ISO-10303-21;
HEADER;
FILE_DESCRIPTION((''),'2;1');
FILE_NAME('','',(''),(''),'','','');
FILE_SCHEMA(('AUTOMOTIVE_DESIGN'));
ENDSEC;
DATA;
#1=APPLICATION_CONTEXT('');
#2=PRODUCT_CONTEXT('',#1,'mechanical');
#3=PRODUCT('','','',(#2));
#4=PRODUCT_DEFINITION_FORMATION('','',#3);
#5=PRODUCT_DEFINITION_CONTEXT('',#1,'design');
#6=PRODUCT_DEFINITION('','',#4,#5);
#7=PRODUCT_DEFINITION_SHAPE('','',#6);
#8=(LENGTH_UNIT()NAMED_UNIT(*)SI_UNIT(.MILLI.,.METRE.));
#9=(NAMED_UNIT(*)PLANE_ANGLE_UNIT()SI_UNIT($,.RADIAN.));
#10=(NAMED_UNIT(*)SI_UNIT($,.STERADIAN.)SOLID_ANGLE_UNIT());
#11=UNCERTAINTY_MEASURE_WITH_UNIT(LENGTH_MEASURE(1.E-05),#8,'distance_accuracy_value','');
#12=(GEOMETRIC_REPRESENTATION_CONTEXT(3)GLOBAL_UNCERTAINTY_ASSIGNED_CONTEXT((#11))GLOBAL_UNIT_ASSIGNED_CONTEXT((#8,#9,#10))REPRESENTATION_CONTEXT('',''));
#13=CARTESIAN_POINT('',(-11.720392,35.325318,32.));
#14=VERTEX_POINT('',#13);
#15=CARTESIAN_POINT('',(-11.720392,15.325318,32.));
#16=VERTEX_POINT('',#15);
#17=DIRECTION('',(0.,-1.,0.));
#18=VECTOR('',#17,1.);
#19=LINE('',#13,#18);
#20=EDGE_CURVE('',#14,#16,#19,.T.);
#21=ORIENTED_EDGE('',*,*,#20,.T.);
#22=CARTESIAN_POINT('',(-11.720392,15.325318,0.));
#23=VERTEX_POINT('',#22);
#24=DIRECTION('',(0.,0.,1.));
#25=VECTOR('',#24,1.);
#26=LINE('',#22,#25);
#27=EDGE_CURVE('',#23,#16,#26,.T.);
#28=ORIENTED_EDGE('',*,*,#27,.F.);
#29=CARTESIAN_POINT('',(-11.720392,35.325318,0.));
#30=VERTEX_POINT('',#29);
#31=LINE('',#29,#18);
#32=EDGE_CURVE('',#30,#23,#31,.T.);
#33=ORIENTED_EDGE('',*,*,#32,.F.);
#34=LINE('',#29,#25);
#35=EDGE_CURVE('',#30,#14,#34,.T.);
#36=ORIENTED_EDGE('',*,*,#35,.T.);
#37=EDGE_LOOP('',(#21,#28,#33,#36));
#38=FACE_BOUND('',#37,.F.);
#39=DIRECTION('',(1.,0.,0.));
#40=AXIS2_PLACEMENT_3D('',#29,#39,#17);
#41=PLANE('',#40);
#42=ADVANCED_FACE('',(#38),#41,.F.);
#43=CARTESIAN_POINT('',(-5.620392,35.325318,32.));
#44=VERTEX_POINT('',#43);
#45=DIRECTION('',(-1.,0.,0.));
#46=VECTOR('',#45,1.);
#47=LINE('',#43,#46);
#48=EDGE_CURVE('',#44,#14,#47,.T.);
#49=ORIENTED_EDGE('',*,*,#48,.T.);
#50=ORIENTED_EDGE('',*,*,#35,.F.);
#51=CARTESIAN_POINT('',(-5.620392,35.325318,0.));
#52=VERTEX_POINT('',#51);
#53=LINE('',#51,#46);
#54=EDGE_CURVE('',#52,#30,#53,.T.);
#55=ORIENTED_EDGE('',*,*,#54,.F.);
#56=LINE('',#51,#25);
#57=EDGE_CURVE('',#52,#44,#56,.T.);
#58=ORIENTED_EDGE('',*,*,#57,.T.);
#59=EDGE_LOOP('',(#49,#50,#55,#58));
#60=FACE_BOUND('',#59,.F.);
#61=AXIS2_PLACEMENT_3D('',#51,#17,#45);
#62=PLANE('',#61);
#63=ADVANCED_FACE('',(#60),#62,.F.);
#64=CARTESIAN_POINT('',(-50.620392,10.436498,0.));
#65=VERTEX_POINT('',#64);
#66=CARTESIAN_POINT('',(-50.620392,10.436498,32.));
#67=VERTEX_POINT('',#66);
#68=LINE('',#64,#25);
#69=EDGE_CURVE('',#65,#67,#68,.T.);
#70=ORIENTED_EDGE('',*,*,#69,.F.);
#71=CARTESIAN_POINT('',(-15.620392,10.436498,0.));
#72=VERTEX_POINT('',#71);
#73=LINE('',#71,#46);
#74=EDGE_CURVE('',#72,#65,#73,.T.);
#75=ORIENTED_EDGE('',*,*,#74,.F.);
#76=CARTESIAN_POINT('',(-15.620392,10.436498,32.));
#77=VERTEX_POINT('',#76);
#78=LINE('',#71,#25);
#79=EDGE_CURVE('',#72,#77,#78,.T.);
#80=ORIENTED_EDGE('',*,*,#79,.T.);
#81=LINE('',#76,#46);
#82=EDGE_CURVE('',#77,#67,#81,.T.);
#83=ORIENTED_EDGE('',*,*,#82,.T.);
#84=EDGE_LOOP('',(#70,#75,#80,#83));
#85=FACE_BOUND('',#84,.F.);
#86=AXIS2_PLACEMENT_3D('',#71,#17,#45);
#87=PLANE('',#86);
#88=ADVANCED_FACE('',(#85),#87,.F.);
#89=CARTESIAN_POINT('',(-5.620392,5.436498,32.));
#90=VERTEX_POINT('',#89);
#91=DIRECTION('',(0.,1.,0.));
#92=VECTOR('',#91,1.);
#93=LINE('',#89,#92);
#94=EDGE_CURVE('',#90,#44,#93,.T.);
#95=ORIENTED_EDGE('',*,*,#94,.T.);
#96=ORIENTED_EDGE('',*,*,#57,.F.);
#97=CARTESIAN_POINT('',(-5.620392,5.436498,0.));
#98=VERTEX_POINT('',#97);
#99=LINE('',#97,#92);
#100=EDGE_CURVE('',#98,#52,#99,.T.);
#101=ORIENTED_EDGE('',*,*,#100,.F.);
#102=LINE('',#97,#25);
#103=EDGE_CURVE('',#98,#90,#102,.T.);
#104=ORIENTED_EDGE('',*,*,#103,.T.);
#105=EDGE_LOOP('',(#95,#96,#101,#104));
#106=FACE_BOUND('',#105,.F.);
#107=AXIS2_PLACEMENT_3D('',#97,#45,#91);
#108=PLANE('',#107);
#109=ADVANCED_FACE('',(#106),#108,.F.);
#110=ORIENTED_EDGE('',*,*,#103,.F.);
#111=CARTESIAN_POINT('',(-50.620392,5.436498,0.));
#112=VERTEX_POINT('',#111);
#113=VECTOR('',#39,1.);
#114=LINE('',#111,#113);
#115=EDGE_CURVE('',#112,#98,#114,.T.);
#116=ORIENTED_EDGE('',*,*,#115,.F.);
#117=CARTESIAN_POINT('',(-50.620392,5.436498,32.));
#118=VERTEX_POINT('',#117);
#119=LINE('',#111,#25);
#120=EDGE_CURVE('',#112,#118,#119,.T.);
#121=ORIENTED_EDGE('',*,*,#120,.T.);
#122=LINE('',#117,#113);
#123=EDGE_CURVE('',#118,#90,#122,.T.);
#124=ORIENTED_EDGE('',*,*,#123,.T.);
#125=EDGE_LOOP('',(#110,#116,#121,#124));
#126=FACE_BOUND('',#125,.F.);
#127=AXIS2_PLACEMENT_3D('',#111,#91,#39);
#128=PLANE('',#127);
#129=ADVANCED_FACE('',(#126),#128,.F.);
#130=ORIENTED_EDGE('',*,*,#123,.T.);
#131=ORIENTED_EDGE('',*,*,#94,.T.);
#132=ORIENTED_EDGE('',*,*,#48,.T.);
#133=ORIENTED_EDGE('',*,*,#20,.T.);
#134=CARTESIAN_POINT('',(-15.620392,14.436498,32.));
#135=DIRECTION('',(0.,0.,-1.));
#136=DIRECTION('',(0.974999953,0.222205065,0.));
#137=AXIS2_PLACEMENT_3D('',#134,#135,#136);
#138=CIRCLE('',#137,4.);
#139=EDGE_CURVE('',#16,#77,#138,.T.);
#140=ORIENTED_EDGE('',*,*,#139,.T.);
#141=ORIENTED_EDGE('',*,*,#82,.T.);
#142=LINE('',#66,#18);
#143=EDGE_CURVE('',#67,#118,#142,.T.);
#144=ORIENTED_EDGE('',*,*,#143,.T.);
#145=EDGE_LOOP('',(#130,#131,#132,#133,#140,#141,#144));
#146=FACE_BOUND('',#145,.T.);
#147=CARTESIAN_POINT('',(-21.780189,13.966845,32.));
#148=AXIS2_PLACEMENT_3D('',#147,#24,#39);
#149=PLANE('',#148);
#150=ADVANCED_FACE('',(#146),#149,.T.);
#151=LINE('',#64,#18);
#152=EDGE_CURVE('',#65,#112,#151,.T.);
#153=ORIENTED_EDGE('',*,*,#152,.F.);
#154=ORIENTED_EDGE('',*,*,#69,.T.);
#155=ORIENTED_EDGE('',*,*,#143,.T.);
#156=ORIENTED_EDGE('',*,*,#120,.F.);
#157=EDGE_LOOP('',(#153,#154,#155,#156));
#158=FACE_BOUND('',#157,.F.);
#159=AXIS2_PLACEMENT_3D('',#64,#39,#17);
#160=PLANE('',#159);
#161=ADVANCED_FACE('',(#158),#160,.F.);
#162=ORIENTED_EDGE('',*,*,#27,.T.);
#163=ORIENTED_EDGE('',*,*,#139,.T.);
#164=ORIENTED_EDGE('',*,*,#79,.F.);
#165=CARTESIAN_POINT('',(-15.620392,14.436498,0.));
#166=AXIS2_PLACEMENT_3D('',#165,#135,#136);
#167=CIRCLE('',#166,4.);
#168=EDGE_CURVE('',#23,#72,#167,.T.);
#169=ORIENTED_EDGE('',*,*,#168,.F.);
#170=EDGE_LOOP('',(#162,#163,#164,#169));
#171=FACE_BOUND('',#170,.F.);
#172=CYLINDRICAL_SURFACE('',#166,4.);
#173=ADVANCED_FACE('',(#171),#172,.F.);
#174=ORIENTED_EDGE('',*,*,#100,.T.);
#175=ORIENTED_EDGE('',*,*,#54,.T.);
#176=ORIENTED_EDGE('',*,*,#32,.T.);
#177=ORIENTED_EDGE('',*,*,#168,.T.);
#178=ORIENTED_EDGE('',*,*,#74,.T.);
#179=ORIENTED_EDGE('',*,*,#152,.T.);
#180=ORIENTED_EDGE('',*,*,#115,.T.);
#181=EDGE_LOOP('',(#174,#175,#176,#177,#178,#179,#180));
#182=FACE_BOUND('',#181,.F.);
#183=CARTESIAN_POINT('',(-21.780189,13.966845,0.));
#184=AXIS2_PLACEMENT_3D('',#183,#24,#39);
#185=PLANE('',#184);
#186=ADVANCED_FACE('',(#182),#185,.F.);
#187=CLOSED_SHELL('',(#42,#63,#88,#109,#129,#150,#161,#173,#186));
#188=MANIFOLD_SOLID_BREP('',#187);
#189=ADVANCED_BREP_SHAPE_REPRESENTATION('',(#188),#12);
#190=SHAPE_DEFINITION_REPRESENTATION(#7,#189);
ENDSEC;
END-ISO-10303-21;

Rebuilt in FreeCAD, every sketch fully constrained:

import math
import FreeCAD as App
import Part
import Sketcher

V = App.Vector
Q = App.Units.Quantity

doc = App.newDocument("Part")
params = doc.addObject("Spreadsheet::Sheet", "Params")
for row, (alias, value) in enumerate([
    ("sketch1_radius", "4 mm"),
    ("sketch1_width", "45 mm"),
    ("sketch1_width2", "35 mm"),
    ("sketch1_height", "5 mm"),
    ("sketch1_height2", "20 mm"),
    ("pad1_length", "32 mm"),
], start=1):
    params.set(f"A{row}", alias)
    params.set(f"B{row}", "=" + value)
    params.setAlias(f"B{row}", alias)

body = doc.addObject("PartDesign::Body", "Body")

# Sketch on XY plane
sketch1 = doc.addObject("Sketcher::SketchObject", "Sketch")
body.addObject(sketch1)
sketch1.AttachmentSupport = (doc.XY_Plane, [""])
sketch1.MapMode = "FlatFace"
sketch1.addGeometry(Part.LineSegment(V(-50.6, 10.4, 0), V(-50.6, 5.4, 0)), False)
sketch1.addGeometry(Part.LineSegment(V(-50.6, 5.4, 0), V(-5.6, 5.4, 0)), False)
sketch1.addGeometry(Part.LineSegment(V(-5.6, 5.4, 0), V(-5.6, 35.3, 0)), False)
sketch1.addGeometry(Part.LineSegment(V(-5.6, 35.3, 0), V(-11.7, 35.3, 0)), False)
sketch1.addGeometry(Part.LineSegment(V(-11.7, 35.3, 0), V(-11.7, 15.3, 0)), False)
sketch1.addGeometry(Part.ArcOfCircle(Part.Circle(V(-15.6, 14.4, 0), V(0, 0, 1), 4), math.radians(-90), math.radians(13)), False)
sketch1.addGeometry(Part.LineSegment(V(-15.6, 10.4, 0), V(-50.6, 10.4, 0)), False)
sketch1.addConstraint(Sketcher.Constraint("Coincident", 0, 2, 1, 1))
sketch1.addConstraint(Sketcher.Constraint("Coincident", 1, 2, 2, 1))
sketch1.addConstraint(Sketcher.Constraint("Coincident", 2, 2, 3, 1))
sketch1.addConstraint(Sketcher.Constraint("Coincident", 3, 2, 4, 1))
sketch1.addConstraint(Sketcher.Constraint("Coincident", 4, 2, 5, 2))
sketch1.addConstraint(Sketcher.Constraint("Tangent", 5, 1, 6, 1))
sketch1.addConstraint(Sketcher.Constraint("Coincident", 6, 2, 0, 1))
sketch1.addConstraint(Sketcher.Constraint("Vertical", 0))
sketch1.addConstraint(Sketcher.Constraint("Horizontal", 1))
sketch1.addConstraint(Sketcher.Constraint("Vertical", 2))
sketch1.addConstraint(Sketcher.Constraint("Horizontal", 3))
sketch1.addConstraint(Sketcher.Constraint("Vertical", 4))
sketch1.addConstraint(Sketcher.Constraint("Horizontal", 6))
sketch1.addConstraint(Sketcher.Constraint("Radius", 5, Q("4 mm")))
sketch1.addConstraint(Sketcher.Constraint("DistanceX", 1, 1, 1, 2, Q("45 mm")))
sketch1.addConstraint(Sketcher.Constraint("DistanceX", 6, 2, 6, 1, Q("35 mm")))
sketch1.addConstraint(Sketcher.Constraint("DistanceY", 0, 2, 0, 1, Q("5 mm")))
sketch1.addConstraint(Sketcher.Constraint("DistanceY", 4, 2, 4, 1, Q("20 mm")))
sketch1.addConstraint(Sketcher.Constraint("DistanceX", 3, 2, 3, 1, Q("6.1 mm")))
sketch1.addConstraint(Sketcher.Constraint("DistanceY", -1, 1, 0, 2, Q("5.436498 mm")))
sketch1.addConstraint(Sketcher.Constraint("DistanceX", 5, 3, -1, 1, Q("15.620392 mm")))
sketch1.setExpression("Constraints[13]", "Params.sketch1_radius")
sketch1.setExpression("Constraints[14]", "Params.sketch1_width")
sketch1.setExpression("Constraints[15]", "Params.sketch1_width2")
sketch1.setExpression("Constraints[16]", "Params.sketch1_height")
sketch1.setExpression("Constraints[17]", "Params.sketch1_height2")
pad1 = doc.addObject("PartDesign::Pad", "Pad")
body.addObject(pad1)
pad1.Profile = sketch1
pad1.setExpression("Length", "Params.pad1_length")

doc.recompute()
